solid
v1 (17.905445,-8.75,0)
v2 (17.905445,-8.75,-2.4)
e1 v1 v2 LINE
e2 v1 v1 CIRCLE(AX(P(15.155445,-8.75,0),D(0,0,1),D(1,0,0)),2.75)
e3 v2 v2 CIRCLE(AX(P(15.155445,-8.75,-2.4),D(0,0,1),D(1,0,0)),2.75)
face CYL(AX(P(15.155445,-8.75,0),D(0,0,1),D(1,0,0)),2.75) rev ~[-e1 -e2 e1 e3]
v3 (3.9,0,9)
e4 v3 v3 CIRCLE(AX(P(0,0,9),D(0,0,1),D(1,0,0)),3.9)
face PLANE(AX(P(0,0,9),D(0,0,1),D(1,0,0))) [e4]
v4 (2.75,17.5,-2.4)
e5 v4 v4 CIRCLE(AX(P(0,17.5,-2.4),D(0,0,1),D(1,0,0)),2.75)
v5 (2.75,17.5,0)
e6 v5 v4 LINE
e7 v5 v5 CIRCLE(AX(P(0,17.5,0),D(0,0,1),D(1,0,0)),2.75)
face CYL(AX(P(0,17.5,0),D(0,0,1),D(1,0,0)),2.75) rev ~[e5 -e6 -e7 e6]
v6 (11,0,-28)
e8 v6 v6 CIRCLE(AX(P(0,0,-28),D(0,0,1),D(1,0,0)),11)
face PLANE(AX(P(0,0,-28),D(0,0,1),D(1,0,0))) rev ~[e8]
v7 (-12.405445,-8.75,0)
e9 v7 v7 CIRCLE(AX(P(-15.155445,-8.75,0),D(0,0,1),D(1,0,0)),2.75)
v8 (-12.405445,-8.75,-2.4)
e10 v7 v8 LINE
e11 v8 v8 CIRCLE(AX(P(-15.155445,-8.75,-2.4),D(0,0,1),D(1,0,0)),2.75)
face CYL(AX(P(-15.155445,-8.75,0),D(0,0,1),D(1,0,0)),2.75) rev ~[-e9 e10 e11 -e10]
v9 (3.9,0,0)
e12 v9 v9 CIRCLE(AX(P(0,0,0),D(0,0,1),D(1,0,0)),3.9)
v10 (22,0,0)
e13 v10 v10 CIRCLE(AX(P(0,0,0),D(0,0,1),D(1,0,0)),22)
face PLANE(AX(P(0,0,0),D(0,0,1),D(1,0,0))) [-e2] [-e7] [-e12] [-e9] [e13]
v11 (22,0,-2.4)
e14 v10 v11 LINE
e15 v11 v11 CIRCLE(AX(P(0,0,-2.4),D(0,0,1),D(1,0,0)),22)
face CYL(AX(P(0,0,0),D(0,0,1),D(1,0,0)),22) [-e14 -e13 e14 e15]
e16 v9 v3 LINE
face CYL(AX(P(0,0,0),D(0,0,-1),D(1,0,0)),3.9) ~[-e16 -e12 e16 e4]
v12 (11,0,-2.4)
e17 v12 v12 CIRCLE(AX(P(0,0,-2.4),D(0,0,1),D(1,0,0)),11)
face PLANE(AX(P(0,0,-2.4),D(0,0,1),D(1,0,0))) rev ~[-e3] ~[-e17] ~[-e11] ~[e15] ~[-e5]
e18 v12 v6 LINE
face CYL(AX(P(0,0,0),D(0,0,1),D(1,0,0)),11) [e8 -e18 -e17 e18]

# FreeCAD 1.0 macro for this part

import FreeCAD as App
import Part
import Sketcher

V = App.Vector

doc = App.newDocument("Part")
body = doc.addObject("PartDesign::Body", "Body")

# Sketch on XY plane
sketch1 = body.newObject("Sketcher::SketchObject", "Sketch")
sketch1.AttachmentSupport = (doc.getObject("XY_Plane"), [""])
sketch1.MapMode = "FlatFace"
sketch1.addGeometry(Part.Circle(V(0, 0, 0), V(0, 0, 1), 11), False)
sketch1.addConstraint(Sketcher.Constraint("Coincident", 0, 3, -1, 1))
sketch1.addConstraint(Sketcher.Constraint("Diameter", 0, 22.0))
pad1 = body.newObject("PartDesign::Pad", "Pad")
pad1.Profile = sketch1
pad1.Length = 28
pad1.Reversed = True

# Sketch on XY plane
sketch2 = body.newObject("Sketcher::SketchObject", "Sketch001")
sketch2.AttachmentSupport = (doc.getObject("XY_Plane"), [""])
sketch2.MapMode = "FlatFace"
sketch2.addGeometry(Part.Circle(V(0, 0, 0), V(0, 0, 1), 22), False)
sketch2.addConstraint(Sketcher.Constraint("Coincident", 0, 3, -1, 1))
sketch2.addConstraint(Sketcher.Constraint("Diameter", 0, 44.0))
pad2 = body.newObject("PartDesign::Pad", "Pad001")
pad2.Profile = sketch2
pad2.Length = 2.4
pad2.Reversed = True

# Sketch on XY plane
sketch3 = body.newObject("Sketcher::SketchObject", "Sketch002")
sketch3.AttachmentSupport = (doc.getObject("XY_Plane"), [""])
sketch3.MapMode = "FlatFace"
sketch3.addGeometry(Part.Circle(V(0, 17.5, 0), V(0, 0, 1), 2.75), False)
sketch3.addGeometry(Part.Circle(V(-15.155445, -8.75, 0), V(0, 0, 1), 2.75), False)
sketch3.addGeometry(Part.Circle(V(15.155445, -8.75, 0), V(0, 0, 1), 2.75), False)
sketch3.addConstraint(Sketcher.Constraint("Equal", 0, 1))
sketch3.addConstraint(Sketcher.Constraint("Equal", 1, 2))
sketch3.addConstraint(Sketcher.Constraint("Symmetric", 1, 3, 2, 3, -2))
sketch3.addConstraint(Sketcher.Constraint("PointOnObject", 0, 3, -2))
sketch3.addConstraint(Sketcher.Constraint("Diameter", 0, 5.5))
sketch3.addConstraint(Sketcher.Constraint("DistanceY", -1, 1, 0, 3, 17.5))
sketch3.addConstraint(Sketcher.Constraint("DistanceY", 1, 3, -1, 1, 8.75))
sketch3.addConstraint(Sketcher.Constraint("DistanceX", 1, 3, 2, 3, 30.31089))
pocket1 = body.newObject("PartDesign::Pocket", "Pocket")
pocket1.Profile = sketch3
pocket1.Type = "ThroughAll"

# Sketch on XY plane
sketch4 = body.newObject("Sketcher::SketchObject", "Sketch003")
sketch4.AttachmentSupport = (doc.getObject("XY_Plane"), [""])
sketch4.MapMode = "FlatFace"
sketch4.addGeometry(Part.Circle(V(0, 0, 0), V(0, 0, 1), 3.9), False)
sketch4.addConstraint(Sketcher.Constraint("Coincident", 0, 3, -1, 1))
sketch4.addConstraint(Sketcher.Constraint("Diameter", 0, 7.8))
pad3 = body.newObject("PartDesign::Pad", "Pad002")
pad3.Profile = sketch4
pad3.Length = 9

doc.recompute()
